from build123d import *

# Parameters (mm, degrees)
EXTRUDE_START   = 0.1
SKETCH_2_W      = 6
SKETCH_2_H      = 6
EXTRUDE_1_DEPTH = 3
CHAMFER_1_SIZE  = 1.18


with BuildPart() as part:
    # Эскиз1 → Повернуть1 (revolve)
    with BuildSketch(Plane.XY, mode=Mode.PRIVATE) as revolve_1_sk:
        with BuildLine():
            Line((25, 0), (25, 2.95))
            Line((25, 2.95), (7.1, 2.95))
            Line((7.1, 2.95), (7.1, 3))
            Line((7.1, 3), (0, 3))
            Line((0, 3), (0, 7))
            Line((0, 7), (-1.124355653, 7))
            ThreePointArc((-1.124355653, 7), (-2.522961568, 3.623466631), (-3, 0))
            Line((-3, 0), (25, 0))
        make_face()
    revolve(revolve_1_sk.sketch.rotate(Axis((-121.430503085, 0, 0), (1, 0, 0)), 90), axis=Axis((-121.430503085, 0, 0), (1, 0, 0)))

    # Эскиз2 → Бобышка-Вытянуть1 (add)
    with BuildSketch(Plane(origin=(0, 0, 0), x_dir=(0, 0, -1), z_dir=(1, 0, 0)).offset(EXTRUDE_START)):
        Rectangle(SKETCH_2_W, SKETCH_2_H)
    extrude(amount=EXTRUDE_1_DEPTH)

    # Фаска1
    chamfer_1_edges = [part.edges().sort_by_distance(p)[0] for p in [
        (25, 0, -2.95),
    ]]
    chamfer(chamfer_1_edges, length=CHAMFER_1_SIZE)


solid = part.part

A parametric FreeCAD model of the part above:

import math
import FreeCAD as App
import Part
import Sketcher


def edges_at(feature, points):
    """Names of the edges that pass closest to the given points."""
    edges = feature.Shape.Edges
    near = lambda p: min(range(len(edges)), key=lambda i: edges[i].distToShape(Part.Vertex(*p))[0])
    return sorted({f"Edge{near(p) + 1}" for p in points})

doc = App.newDocument("Part")
body = doc.addObject("PartDesign::Body", "Body")

sketch1 = body.newObject("Sketcher::SketchObject", "Sketch")
sketch1.AttachmentSupport = (doc.getObject("XY_Plane"), [""])
sketch1.MapMode = "FlatFace"
sketch1.addGeometry(Part.LineSegment(App.Vector(25, 0, 0), App.Vector(25, 2.95, 0)), False)
sketch1.addGeometry(Part.LineSegment(App.Vector(25, 2.95, 0), App.Vector(7.1, 2.95, 0)), False)
sketch1.addGeometry(Part.LineSegment(App.Vector(7.1, 2.95, 0), App.Vector(7.1, 3, 0)), False)
sketch1.addGeometry(Part.LineSegment(App.Vector(7.1, 3, 0), App.Vector(0, 3, 0)), False)
sketch1.addGeometry(Part.LineSegment(App.Vector(0, 3, 0), App.Vector(0, 7, 0)), False)
sketch1.addGeometry(Part.LineSegment(App.Vector(0, 7, 0), App.Vector(-1.124, 7, 0)), False)
sketch1.addGeometry(Part.ArcOfCircle(Part.Circle(App.Vector(11, 0, 0), App.Vector(0, 0, 1), 14), math.radians(150), math.radians(180)), False)
sketch1.addGeometry(Part.LineSegment(App.Vector(-3, 0, 0), App.Vector(25, 0, 0)), False)
sketch1.addConstraint(Sketcher.Constraint("Coincident", 0, 2, 1, 1))
sketch1.addConstraint(Sketcher.Constraint("Coincident", 1, 2, 2, 1))
sketch1.addConstraint(Sketcher.Constraint("Coincident", 2, 2, 3, 1))
sketch1.addConstraint(Sketcher.Constraint("Coincident", 3, 2, 4, 1))
sketch1.addConstraint(Sketcher.Constraint("Coincident", 4, 2, 5, 1))
sketch1.addConstraint(Sketcher.Constraint("Coincident", 5, 2, 6, 1))
sketch1.addConstraint(Sketcher.Constraint("Coincident", 6, 2, 7, 1))
sketch1.addConstraint(Sketcher.Constraint("Coincident", 7, 2, 0, 1))
sketch1.addConstraint(Sketcher.Constraint("Vertical", 0))
sketch1.addConstraint(Sketcher.Constraint("Horizontal", 1))
sketch1.addConstraint(Sketcher.Constraint("Vertical", 2))
sketch1.addConstraint(Sketcher.Constraint("Horizontal", 3))
sketch1.addConstraint(Sketcher.Constraint("Vertical", 4))
sketch1.addConstraint(Sketcher.Constraint("Horizontal", 5))
sketch1.addConstraint(Sketcher.Constraint("Horizontal", 7))
sketch1.addConstraint(Sketcher.Constraint("PointOnObject", 6, 3, -1))
sketch1.addConstraint(Sketcher.Constraint("PointOnObject", 3, 2, -2))
sketch1.addConstraint(Sketcher.Constraint("PointOnObject", 6, 2, -1))
sketch1.addConstraint(Sketcher.Constraint("Radius", 6, 14.0))
sketch1.addConstraint(Sketcher.Constraint("DistanceX", 7, 1, 7, 2, 28.0))
sketch1.addConstraint(Sketcher.Constraint("DistanceY", 4, 1, 4, 2, 4.0))
sketch1.addConstraint(Sketcher.Constraint("DistanceX", 1, 2, 1, 1, 17.9))
sketch1.addConstraint(Sketcher.Constraint("DistanceX", 3, 2, 3, 1, 7.1))
sketch1.addConstraint(Sketcher.Constraint("DistanceY", -1, 1, 2, 2, 3.0))
sketch1.addConstraint(Sketcher.Constraint("DistanceY", 0, 1, 0, 2, 2.95))
revolution = body.newObject("PartDesign::Revolution", "Revolution")
revolution.Profile = sketch1
revolution.ReferenceAxis = (sketch1, ["H_Axis"])
revolution.Angle = 360

sketch2 = body.newObject("Sketcher::SketchObject", "Sketch001")
sketch2.AttachmentSupport = (doc.getObject("YZ_Plane"), [""])
sketch2.MapMode = "FlatFace"
sketch2.AttachmentOffset = App.Placement(App.Vector(0, 0, 0.1), App.Rotation())
sketch2.addGeometry(Part.LineSegment(App.Vector(3, 3, 0), App.Vector(-3, 3, 0)), False)
sketch2.addGeometry(Part.LineSegment(App.Vector(-3, 3, 0), App.Vector(-3, -3, 0)), False)
sketch2.addGeometry(Part.LineSegment(App.Vector(-3, -3, 0), App.Vector(3, -3, 0)), False)
sketch2.addGeometry(Part.LineSegment(App.Vector(3, -3, 0), App.Vector(3, 3, 0)), False)
sketch2.addConstraint(Sketcher.Constraint("Coincident", 0, 2, 1, 1))
sketch2.addConstraint(Sketcher.Constraint("Coincident", 1, 2, 2, 1))
sketch2.addConstraint(Sketcher.Constraint("Coincident", 2, 2, 3, 1))
sketch2.addConstraint(Sketcher.Constraint("Coincident", 3, 2, 0, 1))
sketch2.addConstraint(Sketcher.Constraint("Horizontal", 0))
sketch2.addConstraint(Sketcher.Constraint("Vertical", 1))
sketch2.addConstraint(Sketcher.Constraint("Horizontal", 2))
sketch2.addConstraint(Sketcher.Constraint("Vertical", 3))
sketch2.addConstraint(Sketcher.Constraint("Symmetric", 0, 2, 2, 2, -1, 1))
sketch2.addConstraint(Sketcher.Constraint("Equal", 2, 1))
sketch2.addConstraint(Sketcher.Constraint("DistanceX", 0, 2, 0, 1, 6.0))
pad1 = body.newObject("PartDesign::Pad", "Pad")
pad1.Profile = sketch2
pad1.Length = 3
doc.recompute()

chamfer = body.newObject("PartDesign::Chamfer", "Chamfer")
chamfer.Base = (pad1, edges_at(pad1, [(25, 0, -2.95)]))
chamfer.Size = 1.18

doc.recompute()
